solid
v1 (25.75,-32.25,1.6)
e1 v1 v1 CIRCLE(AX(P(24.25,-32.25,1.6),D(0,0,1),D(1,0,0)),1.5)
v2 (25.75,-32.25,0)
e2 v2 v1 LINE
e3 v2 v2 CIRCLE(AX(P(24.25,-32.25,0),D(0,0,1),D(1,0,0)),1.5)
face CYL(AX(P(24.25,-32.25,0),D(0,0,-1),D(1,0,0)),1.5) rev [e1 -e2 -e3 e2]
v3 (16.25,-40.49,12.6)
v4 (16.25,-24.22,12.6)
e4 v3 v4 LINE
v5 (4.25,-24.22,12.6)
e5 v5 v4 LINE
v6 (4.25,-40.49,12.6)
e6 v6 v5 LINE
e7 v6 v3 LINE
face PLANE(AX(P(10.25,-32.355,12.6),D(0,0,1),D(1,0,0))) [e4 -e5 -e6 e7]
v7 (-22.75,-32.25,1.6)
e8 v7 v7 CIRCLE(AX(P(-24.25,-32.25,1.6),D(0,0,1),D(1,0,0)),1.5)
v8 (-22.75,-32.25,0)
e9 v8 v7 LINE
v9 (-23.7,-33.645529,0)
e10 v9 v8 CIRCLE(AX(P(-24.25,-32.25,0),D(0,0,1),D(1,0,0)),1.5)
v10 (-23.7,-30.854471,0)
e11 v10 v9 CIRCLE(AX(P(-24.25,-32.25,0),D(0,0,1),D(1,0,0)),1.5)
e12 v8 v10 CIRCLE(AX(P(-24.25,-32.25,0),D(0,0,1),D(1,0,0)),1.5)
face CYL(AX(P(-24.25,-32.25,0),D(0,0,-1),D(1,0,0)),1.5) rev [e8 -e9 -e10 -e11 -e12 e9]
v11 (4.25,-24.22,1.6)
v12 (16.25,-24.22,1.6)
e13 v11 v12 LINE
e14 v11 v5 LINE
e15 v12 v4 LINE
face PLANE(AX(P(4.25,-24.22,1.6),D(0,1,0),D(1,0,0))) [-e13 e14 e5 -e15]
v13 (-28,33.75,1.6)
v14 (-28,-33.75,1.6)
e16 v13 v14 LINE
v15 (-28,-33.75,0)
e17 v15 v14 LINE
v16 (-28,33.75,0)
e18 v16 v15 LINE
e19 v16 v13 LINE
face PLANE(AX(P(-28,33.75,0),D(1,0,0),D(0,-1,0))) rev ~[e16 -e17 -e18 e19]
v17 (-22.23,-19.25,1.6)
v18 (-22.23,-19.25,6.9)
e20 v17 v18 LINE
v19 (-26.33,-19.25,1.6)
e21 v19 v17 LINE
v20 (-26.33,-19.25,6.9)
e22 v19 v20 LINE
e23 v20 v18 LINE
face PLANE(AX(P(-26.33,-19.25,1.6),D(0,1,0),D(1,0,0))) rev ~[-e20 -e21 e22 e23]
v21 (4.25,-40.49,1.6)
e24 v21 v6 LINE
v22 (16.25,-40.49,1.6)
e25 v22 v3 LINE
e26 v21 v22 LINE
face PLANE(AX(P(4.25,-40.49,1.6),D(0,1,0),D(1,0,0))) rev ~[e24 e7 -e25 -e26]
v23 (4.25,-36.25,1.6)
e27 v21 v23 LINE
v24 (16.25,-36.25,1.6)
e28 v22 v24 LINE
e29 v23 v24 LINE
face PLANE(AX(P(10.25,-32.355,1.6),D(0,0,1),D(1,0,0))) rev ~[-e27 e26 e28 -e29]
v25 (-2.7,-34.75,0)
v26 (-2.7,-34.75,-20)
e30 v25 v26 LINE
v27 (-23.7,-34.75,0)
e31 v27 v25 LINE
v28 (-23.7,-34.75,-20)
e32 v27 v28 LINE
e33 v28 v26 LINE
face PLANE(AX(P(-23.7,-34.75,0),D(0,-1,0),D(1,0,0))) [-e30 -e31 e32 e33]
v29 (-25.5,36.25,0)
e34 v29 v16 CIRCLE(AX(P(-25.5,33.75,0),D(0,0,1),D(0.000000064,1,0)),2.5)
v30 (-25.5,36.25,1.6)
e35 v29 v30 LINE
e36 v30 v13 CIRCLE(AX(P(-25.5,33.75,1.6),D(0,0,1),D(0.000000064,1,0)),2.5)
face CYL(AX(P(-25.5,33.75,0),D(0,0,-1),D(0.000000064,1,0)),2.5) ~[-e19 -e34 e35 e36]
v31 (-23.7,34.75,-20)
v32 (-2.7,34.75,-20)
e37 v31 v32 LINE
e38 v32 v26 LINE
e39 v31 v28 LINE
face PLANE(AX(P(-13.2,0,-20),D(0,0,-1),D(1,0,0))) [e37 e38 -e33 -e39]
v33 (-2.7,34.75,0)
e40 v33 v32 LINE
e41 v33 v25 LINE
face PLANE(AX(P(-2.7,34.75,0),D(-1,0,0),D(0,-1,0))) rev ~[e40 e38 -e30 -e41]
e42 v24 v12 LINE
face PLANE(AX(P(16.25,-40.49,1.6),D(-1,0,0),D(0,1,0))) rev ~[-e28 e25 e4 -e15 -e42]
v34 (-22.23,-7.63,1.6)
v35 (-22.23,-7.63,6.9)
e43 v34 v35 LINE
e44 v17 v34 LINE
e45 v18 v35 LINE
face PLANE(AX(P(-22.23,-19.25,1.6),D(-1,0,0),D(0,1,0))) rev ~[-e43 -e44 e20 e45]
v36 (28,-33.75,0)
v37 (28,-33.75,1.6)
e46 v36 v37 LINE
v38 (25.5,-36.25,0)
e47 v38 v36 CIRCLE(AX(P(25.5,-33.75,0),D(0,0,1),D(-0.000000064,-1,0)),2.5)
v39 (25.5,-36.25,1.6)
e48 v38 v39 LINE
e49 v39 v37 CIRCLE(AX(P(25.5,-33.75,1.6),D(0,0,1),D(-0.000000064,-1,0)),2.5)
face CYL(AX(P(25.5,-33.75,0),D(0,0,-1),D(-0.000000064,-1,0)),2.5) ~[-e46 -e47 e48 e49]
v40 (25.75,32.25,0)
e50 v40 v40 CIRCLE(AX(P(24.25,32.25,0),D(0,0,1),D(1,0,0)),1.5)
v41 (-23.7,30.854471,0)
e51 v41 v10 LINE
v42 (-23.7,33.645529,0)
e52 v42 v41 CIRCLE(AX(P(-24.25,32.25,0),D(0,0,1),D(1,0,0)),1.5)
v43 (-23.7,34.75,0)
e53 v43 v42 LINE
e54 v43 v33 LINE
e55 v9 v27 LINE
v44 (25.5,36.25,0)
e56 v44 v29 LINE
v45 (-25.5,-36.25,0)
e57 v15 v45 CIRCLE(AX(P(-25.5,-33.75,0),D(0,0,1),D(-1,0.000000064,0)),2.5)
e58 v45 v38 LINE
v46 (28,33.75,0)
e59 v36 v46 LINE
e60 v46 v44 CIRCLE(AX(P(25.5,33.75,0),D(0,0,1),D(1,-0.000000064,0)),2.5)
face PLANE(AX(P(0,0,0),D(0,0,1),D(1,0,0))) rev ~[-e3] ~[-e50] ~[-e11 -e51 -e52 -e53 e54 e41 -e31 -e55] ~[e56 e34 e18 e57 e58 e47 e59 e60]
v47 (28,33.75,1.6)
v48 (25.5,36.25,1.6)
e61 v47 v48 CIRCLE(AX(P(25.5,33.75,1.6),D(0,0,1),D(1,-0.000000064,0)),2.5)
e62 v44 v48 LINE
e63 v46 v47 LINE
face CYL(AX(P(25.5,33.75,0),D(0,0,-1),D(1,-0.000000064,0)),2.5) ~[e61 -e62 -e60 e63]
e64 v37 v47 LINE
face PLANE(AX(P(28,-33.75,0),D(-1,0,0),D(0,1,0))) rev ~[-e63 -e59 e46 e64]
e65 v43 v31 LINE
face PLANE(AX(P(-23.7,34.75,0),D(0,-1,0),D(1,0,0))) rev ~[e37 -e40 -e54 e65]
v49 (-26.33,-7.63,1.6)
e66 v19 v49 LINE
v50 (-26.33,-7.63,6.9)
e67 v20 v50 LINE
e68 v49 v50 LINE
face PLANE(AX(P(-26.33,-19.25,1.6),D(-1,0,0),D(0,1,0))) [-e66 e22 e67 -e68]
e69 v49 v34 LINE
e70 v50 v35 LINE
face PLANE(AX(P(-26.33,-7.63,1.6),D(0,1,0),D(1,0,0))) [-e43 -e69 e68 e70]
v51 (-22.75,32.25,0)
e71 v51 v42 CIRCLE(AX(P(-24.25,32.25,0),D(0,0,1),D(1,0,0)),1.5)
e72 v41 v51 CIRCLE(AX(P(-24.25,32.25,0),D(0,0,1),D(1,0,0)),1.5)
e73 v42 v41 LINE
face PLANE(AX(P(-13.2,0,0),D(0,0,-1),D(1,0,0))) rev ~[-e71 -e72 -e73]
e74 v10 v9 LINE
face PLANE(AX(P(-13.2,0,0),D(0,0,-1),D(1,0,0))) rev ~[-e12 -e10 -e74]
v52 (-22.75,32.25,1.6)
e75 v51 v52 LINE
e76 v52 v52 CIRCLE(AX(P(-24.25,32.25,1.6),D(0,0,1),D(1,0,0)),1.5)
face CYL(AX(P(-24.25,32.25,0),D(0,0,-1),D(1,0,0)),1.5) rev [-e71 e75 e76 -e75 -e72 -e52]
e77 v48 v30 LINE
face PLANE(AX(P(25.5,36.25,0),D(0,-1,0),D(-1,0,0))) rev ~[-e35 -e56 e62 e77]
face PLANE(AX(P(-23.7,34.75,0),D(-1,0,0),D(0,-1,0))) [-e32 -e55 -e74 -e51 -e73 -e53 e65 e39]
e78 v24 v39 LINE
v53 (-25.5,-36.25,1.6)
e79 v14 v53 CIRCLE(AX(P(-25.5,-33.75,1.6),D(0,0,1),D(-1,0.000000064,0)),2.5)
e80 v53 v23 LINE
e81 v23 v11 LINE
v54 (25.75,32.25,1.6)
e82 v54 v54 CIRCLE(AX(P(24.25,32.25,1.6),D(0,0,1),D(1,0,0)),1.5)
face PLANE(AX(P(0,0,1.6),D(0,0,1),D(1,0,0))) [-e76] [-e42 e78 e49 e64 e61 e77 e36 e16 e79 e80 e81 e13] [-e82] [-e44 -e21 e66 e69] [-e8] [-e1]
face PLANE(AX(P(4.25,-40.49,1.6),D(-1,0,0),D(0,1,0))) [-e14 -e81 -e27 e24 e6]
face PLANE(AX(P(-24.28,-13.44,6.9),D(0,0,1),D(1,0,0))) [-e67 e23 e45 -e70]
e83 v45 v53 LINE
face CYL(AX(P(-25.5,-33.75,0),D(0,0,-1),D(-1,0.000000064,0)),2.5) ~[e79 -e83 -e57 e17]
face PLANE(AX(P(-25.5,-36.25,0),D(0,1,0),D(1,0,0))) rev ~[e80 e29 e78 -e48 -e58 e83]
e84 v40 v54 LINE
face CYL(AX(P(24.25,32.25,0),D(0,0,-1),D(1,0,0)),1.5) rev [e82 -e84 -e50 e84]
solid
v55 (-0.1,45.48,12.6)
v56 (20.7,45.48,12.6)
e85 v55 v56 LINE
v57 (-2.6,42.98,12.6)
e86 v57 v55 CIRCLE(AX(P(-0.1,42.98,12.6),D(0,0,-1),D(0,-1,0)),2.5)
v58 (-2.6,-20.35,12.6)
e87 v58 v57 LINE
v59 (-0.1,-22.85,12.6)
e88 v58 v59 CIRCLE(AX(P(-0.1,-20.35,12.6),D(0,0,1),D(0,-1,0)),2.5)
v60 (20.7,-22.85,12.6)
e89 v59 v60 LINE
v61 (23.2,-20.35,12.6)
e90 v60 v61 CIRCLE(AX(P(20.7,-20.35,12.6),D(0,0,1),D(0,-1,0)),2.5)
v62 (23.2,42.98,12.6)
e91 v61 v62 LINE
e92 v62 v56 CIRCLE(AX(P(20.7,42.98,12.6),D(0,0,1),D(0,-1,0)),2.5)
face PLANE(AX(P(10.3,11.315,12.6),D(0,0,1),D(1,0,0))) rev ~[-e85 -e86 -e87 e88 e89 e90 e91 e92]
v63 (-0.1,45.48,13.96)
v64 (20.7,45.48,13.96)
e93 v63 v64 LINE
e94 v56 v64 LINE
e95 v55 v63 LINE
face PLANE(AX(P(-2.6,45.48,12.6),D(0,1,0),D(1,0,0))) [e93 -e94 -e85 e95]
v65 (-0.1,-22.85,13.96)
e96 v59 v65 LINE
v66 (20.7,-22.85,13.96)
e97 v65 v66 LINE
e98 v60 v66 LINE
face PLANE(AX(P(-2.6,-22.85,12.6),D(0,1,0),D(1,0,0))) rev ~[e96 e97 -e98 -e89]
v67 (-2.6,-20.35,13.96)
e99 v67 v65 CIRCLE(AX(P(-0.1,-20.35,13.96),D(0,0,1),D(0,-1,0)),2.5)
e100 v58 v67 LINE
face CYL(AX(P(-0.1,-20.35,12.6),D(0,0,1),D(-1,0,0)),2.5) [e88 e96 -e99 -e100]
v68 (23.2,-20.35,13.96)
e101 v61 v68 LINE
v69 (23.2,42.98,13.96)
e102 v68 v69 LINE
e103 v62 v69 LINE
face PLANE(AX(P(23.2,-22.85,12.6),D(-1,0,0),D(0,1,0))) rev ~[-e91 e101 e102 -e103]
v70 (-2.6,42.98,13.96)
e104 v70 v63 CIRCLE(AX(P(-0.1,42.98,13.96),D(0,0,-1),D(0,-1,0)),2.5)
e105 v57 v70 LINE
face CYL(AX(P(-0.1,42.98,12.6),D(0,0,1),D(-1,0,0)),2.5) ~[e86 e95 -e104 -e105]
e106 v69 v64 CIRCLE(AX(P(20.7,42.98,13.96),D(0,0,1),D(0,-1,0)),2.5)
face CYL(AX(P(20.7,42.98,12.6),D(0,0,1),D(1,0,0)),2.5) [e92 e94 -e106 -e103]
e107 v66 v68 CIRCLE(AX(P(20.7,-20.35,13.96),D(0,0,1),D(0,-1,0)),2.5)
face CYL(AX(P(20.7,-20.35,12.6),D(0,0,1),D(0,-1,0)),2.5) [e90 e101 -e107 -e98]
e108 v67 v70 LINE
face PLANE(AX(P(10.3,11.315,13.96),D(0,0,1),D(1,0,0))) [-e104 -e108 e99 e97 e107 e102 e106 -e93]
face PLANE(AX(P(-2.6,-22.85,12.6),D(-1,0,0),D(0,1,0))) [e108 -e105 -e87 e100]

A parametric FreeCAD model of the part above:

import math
import FreeCAD as App
import Part
import Sketcher

V = App.Vector


def edges_at(feature, points):
    """Names of the edges that pass closest to the given points."""
    edges = feature.Shape.Edges
    near = lambda p: min(range(len(edges)), key=lambda i: edges[i].distToShape(Part.Vertex(*p))[0])
    return sorted({f"Edge{near(p) + 1}" for p in points})


def add_polygon(sketch, points):
    """Adds a closed chain of lines whose ends are joined by coincident constraints."""
    first, n = sketch.GeometryCount, len(points)
    for a, b in zip(points, points[1:] + points[:1]):
        sketch.addGeometry(Part.LineSegment(App.Vector(*a, 0), App.Vector(*b, 0)), False)
    for i in range(n):
        sketch.addConstraint(Sketcher.Constraint("Coincident", first + i, 2, first + (i + 1) % n, 1))

doc = App.newDocument("Part")
body = doc.addObject("PartDesign::Body", "Body")

sketch1 = doc.addObject("Sketcher::SketchObject", "Sketch")
body.addObject(sketch1)
sketch1.AttachmentSupport = (doc.XY_Plane, [""])
sketch1.MapMode = "FlatFace"
sketch1.addGeometry([
    Part.ArcOfCircle(Part.Circle(V(25.5, 33.75, 0), V(0, 0, 1), 2.5), math.radians(-0.000004), math.radians(90.000004)),
    Part.LineSegment(V(25.5, 36.25, 0), V(-25.5, 36.25, 0)),
    Part.ArcOfCircle(Part.Circle(V(-25.5, 33.75, 0), V(0, 0, 1), 2.5), math.radians(89.999996), math.radians(180.000004)),
    Part.LineSegment(V(-28, 33.75, 0), V(-28, -33.75, 0)),
    Part.ArcOfCircle(Part.Circle(V(-25.5, -33.75, 0), V(0, 0, 1), 2.5), math.radians(179.999996), math.radians(270.000004)),
    Part.LineSegment(V(-25.5, -36.25, 0), V(25.5, -36.25, 0)),
    Part.ArcOfCircle(Part.Circle(V(25.5, -33.75, 0), V(0, 0, 1), 2.5), math.radians(-90.000004), math.radians(0.000004)),
    Part.LineSegment(V(28, -33.75, 0), V(28, 33.75, 0)),
    Part.Circle(V(-24.25, -32.25, 0), V(0, 0, 1), 1.5),
    Part.Circle(V(24.25, -32.25, 0), V(0, 0, 1), 1.5),
    Part.Circle(V(-24.25, 32.25, 0), V(0, 0, 1), 1.5),
    Part.Circle(V(24.25, 32.25, 0), V(0, 0, 1), 1.5),
], False)
sketch1.addConstraint([
    Sketcher.Constraint("Tangent", 0, 2, 1, 1),
    Sketcher.Constraint("Tangent", 1, 2, 2, 1),
    Sketcher.Constraint("Tangent", 2, 2, 3, 1),
    Sketcher.Constraint("Tangent", 3, 2, 4, 1),
    Sketcher.Constraint("Tangent", 4, 2, 5, 1),
    Sketcher.Constraint("Tangent", 5, 2, 6, 1),
    Sketcher.Constraint("Tangent", 6, 2, 7, 1),
    Sketcher.Constraint("Tangent", 7, 2, 0, 1),
    Sketcher.Constraint("Horizontal", 1),
    Sketcher.Constraint("Vertical", 3),
    Sketcher.Constraint("Horizontal", 5),
    Sketcher.Constraint("Vertical", 7),
    Sketcher.Constraint("Equal", 0, 2),
    Sketcher.Constraint("Equal", 2, 4),
    Sketcher.Constraint("Equal", 4, 6),
    Sketcher.Constraint("Equal", 8, 9),
    Sketcher.Constraint("Equal", 9, 10),
    Sketcher.Constraint("Equal", 10, 11),
    Sketcher.Constraint("Symmetric", 0, 3, 4, 3, -1, 1),
    Sketcher.Constraint("Symmetric", 9, 3, 10, 3, -1, 1),
    Sketcher.Constraint("Symmetric", 8, 3, 11, 3, -1, 1),
    Sketcher.Constraint("Symmetric", 8, 3, 9, 3, -2),
    Sketcher.Constraint("Diameter", 8, 3.0),
    Sketcher.Constraint("Radius", 0, 2.5),
    Sketcher.Constraint("DistanceX", 1, 2, 1, 1, 51.0),
    Sketcher.Constraint("DistanceY", 3, 2, 3, 1, 67.5),
    Sketcher.Constraint("DistanceY", 8, 3, 2, 3, 66.0),
    Sketcher.Constraint("DistanceX", 8, 3, 9, 3, 48.5),
])
pad1 = doc.addObject("PartDesign::Pad", "Pad")
body.addObject(pad1)
pad1.Profile = sketch1
pad1.Length = 1.6

sketch2 = doc.addObject("Sketcher::SketchObject", "Sketch001")
body.addObject(sketch2)
sketch2.AttachmentSupport = (doc.XY_Plane, [""])
sketch2.MapMode = "FlatFace"
sketch2.AttachmentOffset = App.Placement(V(0, 0, 1.6), App.Rotation())
add_polygon(sketch2, [(4.25, -24.22), (4.25, -40.49), (16.25, -40.49), (16.25, -24.22)])
sketch2.addConstraint([
    Sketcher.Constraint("Vertical", 0),
    Sketcher.Constraint("Horizontal", 1),
    Sketcher.Constraint("Vertical", 2),
    Sketcher.Constraint("Horizontal", 3),
    Sketcher.Constraint("DistanceX", 1, 1, 1, 2, 12.0),
    Sketcher.Constraint("DistanceY", 0, 2, 0, 1, 16.27),
    Sketcher.Constraint("DistanceX", -1, 1, 0, 2, 4.25),
    Sketcher.Constraint("DistanceY", 0, 2, -1, 1, 40.49),
])
pad2 = doc.addObject("PartDesign::Pad", "Pad001")
body.addObject(pad2)
pad2.Profile = sketch2
pad2.Length = 11

sketch3 = doc.addObject("Sketcher::SketchObject", "Sketch002")
body.addObject(sketch3)
sketch3.AttachmentSupport = (doc.XY_Plane, [""])
sketch3.MapMode = "FlatFace"
sketch3.AttachmentOffset = App.Placement(V(0, 0, 1.6), App.Rotation())
add_polygon(sketch3, [(-26.33, -7.63), (-26.33, -19.25), (-22.23, -19.25), (-22.23, -7.63)])
sketch3.addConstraint([
    Sketcher.Constraint("Vertical", 0),
    Sketcher.Constraint("Horizontal", 1),
    Sketcher.Constraint("Vertical", 2),
    Sketcher.Constraint("Horizontal", 3),
    Sketcher.Constraint("DistanceX", 1, 1, 1, 2, 4.1),
    Sketcher.Constraint("DistanceY", 0, 2, 0, 1, 11.62),
    Sketcher.Constraint("DistanceX", 0, 2, -1, 1, 26.33),
    Sketcher.Constraint("DistanceY", 0, 2, -1, 1, 19.25),
])
pad3 = doc.addObject("PartDesign::Pad", "Pad002")
body.addObject(pad3)
pad3.Profile = sketch3
pad3.Length = 5.3

sketch4 = doc.addObject("Sketcher::SketchObject", "Sketch003")
body.addObject(sketch4)
sketch4.AttachmentSupport = (doc.XY_Plane, [""])
sketch4.MapMode = "FlatFace"
add_polygon(sketch4, [(-23.7, -34.75), (-23.7, 34.75), (-2.7, 34.75), (-2.7, -34.75)])
sketch4.addConstraint([
    Sketcher.Constraint("Vertical", 0),
    Sketcher.Constraint("Horizontal", 1),
    Sketcher.Constraint("Vertical", 2),
    Sketcher.Constraint("Horizontal", 3),
    Sketcher.Constraint("DistanceX", 1, 1, 1, 2, 21.0),
    Sketcher.Constraint("DistanceY", 0, 1, 0, 2, 69.5),
    Sketcher.Constraint("DistanceX", 0, 2, -1, 1, 23.7),
    Sketcher.Constraint("DistanceY", -1, 1, 0, 2, 34.75),
])
pad4 = doc.addObject("PartDesign::Pad", "Pad003")
body.addObject(pad4)
pad4.Profile = sketch4
pad4.Length = 20
pad4.Reversed = True
body2 = doc.addObject("PartDesign::Body", "Body001")

sketch5 = doc.addObject("Sketcher::SketchObject", "Sketch004")
body2.addObject(sketch5)
sketch5.AttachmentSupport = (doc.getObject("XY_Plane001"), [""])
sketch5.MapMode = "FlatFace"
sketch5.AttachmentOffset = App.Placement(V(0, 0, 12.6), App.Rotation())
add_polygon(sketch5, [(-2.6, 45.48), (-2.6, -22.85), (23.2, -22.85), (23.2, 45.48)])
sketch5.addConstraint([
    Sketcher.Constraint("Vertical", 0),
    Sketcher.Constraint("Horizontal", 1),
    Sketcher.Constraint("Vertical", 2),
    Sketcher.Constraint("Horizontal", 3),
    Sketcher.Constraint("DistanceX", 1, 1, 1, 2, 25.8),
    Sketcher.Constraint("DistanceY", 0, 2, 0, 1, 68.33),
    Sketcher.Constraint("DistanceX", 0, 2, -1, 1, 2.6),
    Sketcher.Constraint("DistanceY", 0, 2, -1, 1, 22.85),
])
pad5 = doc.addObject("PartDesign::Pad", "Pad004")
body2.addObject(pad5)
pad5.Profile = sketch5
pad5.Length = 1.36
doc.recompute()

fillet = doc.addObject("PartDesign::Fillet", "Fillet")
body2.addObject(fillet)
fillet.Base = (pad5, edges_at(pad5, [
    (23.2, -22.85, 13.28),
    (-2.6, -22.85, 13.28),
    (23.2, 45.48, 13.28),
    (-2.6, 45.48, 13.28),
]))
fillet.Radius = 2.5

doc.recompute()
